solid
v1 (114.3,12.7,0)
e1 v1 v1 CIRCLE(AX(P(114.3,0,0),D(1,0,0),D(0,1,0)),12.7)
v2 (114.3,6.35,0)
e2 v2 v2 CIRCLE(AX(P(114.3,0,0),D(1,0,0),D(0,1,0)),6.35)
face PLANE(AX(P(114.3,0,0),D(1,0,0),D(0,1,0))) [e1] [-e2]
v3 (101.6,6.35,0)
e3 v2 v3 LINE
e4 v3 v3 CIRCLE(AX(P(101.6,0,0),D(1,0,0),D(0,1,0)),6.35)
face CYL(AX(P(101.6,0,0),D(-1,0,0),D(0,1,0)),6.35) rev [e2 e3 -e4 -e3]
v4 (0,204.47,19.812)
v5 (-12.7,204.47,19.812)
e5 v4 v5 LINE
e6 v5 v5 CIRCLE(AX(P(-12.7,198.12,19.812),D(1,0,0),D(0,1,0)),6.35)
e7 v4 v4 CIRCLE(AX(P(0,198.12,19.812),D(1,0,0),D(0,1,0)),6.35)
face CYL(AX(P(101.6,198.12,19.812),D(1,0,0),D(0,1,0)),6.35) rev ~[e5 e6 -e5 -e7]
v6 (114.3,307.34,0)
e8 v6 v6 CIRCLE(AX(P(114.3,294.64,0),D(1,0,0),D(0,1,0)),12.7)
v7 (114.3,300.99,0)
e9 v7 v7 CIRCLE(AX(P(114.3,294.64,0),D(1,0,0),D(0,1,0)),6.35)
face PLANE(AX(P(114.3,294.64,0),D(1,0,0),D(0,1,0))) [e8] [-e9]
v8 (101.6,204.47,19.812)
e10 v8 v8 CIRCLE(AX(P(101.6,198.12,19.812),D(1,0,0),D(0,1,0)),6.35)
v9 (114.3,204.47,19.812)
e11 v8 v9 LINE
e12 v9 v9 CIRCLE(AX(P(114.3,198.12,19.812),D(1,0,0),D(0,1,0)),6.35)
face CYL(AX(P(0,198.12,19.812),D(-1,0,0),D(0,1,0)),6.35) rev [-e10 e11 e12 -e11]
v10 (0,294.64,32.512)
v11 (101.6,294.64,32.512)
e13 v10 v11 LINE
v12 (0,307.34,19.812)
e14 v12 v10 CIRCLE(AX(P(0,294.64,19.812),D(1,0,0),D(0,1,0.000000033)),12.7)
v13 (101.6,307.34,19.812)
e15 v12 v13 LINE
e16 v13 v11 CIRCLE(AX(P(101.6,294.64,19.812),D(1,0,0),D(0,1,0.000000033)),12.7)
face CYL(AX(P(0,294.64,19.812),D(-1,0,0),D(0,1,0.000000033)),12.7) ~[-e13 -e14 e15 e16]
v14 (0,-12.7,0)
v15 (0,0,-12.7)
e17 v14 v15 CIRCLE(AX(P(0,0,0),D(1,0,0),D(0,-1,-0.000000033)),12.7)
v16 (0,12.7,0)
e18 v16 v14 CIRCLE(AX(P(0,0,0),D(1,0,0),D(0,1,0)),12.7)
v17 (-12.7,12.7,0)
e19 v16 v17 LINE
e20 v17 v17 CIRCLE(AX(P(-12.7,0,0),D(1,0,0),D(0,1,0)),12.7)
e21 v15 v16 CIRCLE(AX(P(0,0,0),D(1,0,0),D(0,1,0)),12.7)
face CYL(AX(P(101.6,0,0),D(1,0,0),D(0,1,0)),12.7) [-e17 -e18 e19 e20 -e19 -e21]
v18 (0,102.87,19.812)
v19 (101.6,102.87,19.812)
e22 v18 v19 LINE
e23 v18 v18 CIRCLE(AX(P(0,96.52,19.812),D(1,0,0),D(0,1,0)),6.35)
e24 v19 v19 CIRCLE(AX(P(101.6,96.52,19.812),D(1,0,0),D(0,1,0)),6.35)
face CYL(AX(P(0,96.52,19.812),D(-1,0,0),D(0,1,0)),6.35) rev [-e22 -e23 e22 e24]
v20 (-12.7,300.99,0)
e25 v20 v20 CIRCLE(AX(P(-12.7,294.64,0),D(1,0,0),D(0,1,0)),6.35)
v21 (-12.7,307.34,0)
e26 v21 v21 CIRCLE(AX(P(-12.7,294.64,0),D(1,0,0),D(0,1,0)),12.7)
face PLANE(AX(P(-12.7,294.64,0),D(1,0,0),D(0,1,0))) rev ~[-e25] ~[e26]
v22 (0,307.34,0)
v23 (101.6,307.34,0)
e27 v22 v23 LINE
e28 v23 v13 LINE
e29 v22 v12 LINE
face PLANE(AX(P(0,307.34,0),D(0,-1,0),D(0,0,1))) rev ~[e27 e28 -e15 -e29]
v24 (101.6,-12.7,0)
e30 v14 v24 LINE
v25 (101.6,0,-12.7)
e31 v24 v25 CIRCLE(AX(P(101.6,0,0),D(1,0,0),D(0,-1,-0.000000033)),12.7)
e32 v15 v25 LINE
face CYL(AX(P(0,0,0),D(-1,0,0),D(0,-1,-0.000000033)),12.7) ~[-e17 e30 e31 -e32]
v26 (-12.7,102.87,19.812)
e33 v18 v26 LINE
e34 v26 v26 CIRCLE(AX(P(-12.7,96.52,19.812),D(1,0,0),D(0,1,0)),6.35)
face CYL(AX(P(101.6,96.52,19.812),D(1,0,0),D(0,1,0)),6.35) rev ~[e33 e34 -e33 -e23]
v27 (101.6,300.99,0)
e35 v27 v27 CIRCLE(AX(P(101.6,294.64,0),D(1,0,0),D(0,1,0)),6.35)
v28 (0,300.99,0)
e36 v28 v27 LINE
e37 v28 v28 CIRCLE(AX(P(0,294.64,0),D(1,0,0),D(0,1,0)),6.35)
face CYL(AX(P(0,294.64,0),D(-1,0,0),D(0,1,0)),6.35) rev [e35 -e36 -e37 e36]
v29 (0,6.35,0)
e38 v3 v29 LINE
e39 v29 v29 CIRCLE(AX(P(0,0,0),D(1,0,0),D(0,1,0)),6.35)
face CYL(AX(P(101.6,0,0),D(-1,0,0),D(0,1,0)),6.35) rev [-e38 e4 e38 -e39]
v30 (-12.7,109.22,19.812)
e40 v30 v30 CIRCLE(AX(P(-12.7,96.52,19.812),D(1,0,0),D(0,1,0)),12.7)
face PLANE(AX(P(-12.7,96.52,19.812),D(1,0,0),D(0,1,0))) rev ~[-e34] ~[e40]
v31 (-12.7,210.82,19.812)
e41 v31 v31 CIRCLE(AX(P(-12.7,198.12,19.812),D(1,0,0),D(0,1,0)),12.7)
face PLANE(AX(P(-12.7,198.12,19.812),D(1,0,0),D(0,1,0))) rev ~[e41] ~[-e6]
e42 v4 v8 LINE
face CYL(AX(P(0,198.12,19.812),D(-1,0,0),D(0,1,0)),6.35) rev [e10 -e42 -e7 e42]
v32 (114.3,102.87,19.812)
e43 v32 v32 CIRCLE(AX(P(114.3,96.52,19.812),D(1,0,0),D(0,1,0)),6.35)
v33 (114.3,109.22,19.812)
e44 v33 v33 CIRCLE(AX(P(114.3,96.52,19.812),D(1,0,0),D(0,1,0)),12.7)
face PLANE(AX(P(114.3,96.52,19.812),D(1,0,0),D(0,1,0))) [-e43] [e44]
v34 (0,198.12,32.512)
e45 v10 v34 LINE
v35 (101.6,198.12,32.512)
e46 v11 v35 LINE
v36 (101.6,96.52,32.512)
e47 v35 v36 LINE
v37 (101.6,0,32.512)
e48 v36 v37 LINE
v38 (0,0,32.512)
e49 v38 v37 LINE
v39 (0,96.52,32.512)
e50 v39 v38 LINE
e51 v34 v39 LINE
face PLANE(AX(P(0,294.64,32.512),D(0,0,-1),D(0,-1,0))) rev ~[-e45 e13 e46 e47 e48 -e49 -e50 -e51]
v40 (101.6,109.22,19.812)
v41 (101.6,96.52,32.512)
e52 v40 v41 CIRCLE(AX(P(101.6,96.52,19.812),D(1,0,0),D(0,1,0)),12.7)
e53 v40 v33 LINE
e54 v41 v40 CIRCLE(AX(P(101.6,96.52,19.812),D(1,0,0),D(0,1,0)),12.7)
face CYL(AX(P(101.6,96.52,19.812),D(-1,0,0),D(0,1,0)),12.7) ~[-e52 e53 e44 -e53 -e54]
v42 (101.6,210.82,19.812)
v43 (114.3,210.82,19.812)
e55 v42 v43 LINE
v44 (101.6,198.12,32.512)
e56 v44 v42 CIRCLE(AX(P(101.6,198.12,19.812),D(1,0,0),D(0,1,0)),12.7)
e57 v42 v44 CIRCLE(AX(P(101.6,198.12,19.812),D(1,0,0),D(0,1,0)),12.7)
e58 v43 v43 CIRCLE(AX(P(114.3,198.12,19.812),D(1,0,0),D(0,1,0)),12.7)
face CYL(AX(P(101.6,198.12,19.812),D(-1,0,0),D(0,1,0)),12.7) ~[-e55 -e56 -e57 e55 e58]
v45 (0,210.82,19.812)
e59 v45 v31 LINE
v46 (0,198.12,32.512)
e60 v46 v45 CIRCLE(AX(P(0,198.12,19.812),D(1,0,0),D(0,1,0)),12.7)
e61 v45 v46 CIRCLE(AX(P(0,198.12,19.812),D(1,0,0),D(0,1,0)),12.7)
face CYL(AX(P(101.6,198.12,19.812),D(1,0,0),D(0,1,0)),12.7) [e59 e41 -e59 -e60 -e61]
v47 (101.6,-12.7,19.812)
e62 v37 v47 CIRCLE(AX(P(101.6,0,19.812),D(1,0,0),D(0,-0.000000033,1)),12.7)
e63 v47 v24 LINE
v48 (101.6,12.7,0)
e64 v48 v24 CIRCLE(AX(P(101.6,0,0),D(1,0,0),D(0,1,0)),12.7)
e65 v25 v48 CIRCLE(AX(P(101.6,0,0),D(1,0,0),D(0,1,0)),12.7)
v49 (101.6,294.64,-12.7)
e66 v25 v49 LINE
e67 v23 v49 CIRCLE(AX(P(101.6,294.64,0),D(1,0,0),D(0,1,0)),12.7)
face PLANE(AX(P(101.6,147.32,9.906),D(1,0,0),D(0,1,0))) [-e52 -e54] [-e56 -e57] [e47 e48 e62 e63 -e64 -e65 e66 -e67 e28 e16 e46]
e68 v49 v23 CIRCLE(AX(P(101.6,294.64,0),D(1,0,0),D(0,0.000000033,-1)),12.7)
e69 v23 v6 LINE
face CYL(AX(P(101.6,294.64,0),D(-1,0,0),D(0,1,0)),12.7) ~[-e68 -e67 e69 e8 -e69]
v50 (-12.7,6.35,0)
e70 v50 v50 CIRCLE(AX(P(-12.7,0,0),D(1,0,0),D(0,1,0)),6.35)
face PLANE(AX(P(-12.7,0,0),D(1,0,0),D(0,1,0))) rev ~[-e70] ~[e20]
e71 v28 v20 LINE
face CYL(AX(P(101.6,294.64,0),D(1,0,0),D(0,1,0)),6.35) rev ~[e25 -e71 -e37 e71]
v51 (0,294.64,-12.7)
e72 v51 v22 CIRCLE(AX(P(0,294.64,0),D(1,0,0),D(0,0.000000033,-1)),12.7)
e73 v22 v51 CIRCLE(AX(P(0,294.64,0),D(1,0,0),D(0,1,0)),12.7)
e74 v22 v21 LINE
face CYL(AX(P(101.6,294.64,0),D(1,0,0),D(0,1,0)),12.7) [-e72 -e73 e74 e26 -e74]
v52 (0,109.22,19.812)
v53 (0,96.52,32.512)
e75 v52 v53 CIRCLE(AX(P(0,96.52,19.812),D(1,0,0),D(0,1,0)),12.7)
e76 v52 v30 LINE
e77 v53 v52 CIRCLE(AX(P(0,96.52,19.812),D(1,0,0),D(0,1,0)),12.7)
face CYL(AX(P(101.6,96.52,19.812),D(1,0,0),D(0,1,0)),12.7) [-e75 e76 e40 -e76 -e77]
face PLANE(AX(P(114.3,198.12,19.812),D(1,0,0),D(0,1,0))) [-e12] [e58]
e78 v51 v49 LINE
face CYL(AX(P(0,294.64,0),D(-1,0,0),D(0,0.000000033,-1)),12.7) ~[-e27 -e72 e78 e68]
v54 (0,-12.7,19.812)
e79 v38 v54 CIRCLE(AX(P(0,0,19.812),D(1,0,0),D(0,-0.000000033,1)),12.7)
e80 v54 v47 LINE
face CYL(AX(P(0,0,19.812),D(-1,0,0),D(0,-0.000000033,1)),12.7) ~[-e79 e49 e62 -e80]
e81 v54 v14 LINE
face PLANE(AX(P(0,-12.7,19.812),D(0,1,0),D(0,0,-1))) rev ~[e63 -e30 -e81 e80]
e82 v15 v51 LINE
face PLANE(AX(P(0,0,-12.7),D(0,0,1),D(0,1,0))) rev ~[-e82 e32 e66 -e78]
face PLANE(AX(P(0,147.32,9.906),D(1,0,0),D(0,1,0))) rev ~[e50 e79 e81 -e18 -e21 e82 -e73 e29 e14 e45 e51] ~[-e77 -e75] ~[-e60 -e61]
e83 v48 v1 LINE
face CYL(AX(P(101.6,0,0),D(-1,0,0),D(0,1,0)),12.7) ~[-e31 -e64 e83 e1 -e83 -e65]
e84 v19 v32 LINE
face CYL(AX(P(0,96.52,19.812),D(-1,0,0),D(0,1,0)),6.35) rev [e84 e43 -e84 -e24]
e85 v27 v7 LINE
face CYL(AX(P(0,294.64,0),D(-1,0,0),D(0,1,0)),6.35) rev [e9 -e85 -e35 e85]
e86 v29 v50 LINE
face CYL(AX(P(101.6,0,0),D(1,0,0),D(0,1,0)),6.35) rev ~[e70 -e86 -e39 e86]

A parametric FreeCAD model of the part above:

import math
import FreeCAD as App
import Part
import Sketcher
from FreeCAD import Vector
Q = App.Units.Quantity

doc = App.newDocument("Part")
body = doc.addObject("PartDesign::Body", "Body")

# Sketch on YZ plane
sketch1 = body.newObject("Sketcher::SketchObject", "Sketch")
sketch1.AttachmentSupport = (doc.getObject("YZ_Plane"), [""])
sketch1.MapMode = "FlatFace"
sketch1.addGeometry(Part.ArcOfCircle(Part.Circle(Vector(0, 19.812, 0), Vector(0, 0, 1), 12.7), math.radians(90.000002), math.radians(179.999998)), False)
sketch1.addGeometry(Part.LineSegment(Vector(-12.7, 19.812, 0), Vector(-12.7, 0, 0)), False)
sketch1.addGeometry(Part.ArcOfCircle(Part.Circle(Vector(0, 0, 0), Vector(0, 0, 1), 12.7), math.radians(-179.999998), math.radians(-90.000002)), False)
sketch1.addGeometry(Part.LineSegment(Vector(0, -12.7, 0), Vector(294.64, -12.7, 0)), False)
sketch1.addGeometry(Part.ArcOfCircle(Part.Circle(Vector(294.64, 0, 0), Vector(0, 0, 1), 12.7), math.radians(-89.999998), math.radians(-0.000002)), False)
sketch1.addGeometry(Part.LineSegment(Vector(307.34, 0, 0), Vector(307.34, 19.812, 0)), False)
sketch1.addGeometry(Part.ArcOfCircle(Part.Circle(Vector(294.64, 19.812, 0), Vector(0, 0, 1), 12.7), math.radians(0.000002), math.radians(89.999998)), False)
sketch1.addGeometry(Part.LineSegment(Vector(294.64, 32.512, 0), Vector(0, 32.512, 0)), False)
sketch1.addGeometry(Part.Circle(Vector(0, 0, 0), Vector(0, 0, 1), 6.35), False)
sketch1.addGeometry(Part.Circle(Vector(294.64, 0, 0), Vector(0, 0, 1), 6.35), False)
sketch1.addGeometry(Part.Circle(Vector(96.52, 19.812, 0), Vector(0, 0, 1), 6.35), False)
sketch1.addGeometry(Part.Circle(Vector(198.12, 19.812, 0), Vector(0, 0, 1), 6.35), False)
sketch1.addConstraint(Sketcher.Constraint("Tangent", 0, 2, 1, 1))
sketch1.addConstraint(Sketcher.Constraint("Tangent", 1, 2, 2, 1))
sketch1.addConstraint(Sketcher.Constraint("Tangent", 2, 2, 3, 1))
sketch1.addConstraint(Sketcher.Constraint("Tangent", 3, 2, 4, 1))
sketch1.addConstraint(Sketcher.Constraint("Tangent", 4, 2, 5, 1))
sketch1.addConstraint(Sketcher.Constraint("Tangent", 5, 2, 6, 1))
sketch1.addConstraint(Sketcher.Constraint("Tangent", 6, 2, 7, 1))
sketch1.addConstraint(Sketcher.Constraint("Tangent", 7, 2, 0, 1))
sketch1.addConstraint(Sketcher.Constraint("Vertical", 1))
sketch1.addConstraint(Sketcher.Constraint("Horizontal", 3))
sketch1.addConstraint(Sketcher.Constraint("Vertical", 5))
sketch1.addConstraint(Sketcher.Constraint("Horizontal", 7))
sketch1.addConstraint(Sketcher.Constraint("Coincident", 2, 3, -1, 1))
sketch1.addConstraint(Sketcher.Constraint("Coincident", 8, 3, -1, 1))
sketch1.addConstraint(Sketcher.Constraint("Coincident", 9, 3, 4, 3))
sketch1.addConstraint(Sketcher.Constraint("Equal", 0, 2))
sketch1.addConstraint(Sketcher.Constraint("Equal", 2, 4))
sketch1.addConstraint(Sketcher.Constraint("Equal", 4, 6))
sketch1.addConstraint(Sketcher.Constraint("Equal", 8, 9))
sketch1.addConstraint(Sketcher.Constraint("Equal", 9, 10))
sketch1.addConstraint(Sketcher.Constraint("Equal", 10, 11))
sketch1.addConstraint(Sketcher.Constraint("Horizontal", 6, 3, 10, 3))
sketch1.addConstraint(Sketcher.Constraint("Horizontal", 10, 3, 11, 3))
sketch1.addConstraint(Sketcher.Constraint("Diameter", 8, Q("0.5 in")))
sketch1.addConstraint(Sketcher.Constraint("Radius", 0, Q("0.5 in")))
sketch1.addConstraint(Sketcher.Constraint("DistanceX", 3, 1, 3, 2, Q("11.6 in")))
sketch1.addConstraint(Sketcher.Constraint("DistanceX", 10, 3, 11, 3, Q("4 in")))
sketch1.addConstraint(Sketcher.Constraint("DistanceY", 1, 2, 1, 1, Q("0.78 in")))
sketch1.addConstraint(Sketcher.Constraint("DistanceX", -1, 1, 10, 3, Q("3.8 in")))
pad1 = body.newObject("PartDesign::Pad", "Pad")
pad1.Profile = sketch1
pad1.Length = Q("4 in")

# Sketch on YZ plane
sketch2 = body.newObject("Sketcher::SketchObject", "Sketch001")
sketch2.AttachmentSupport = (doc.getObject("YZ_Plane"), [""])
sketch2.MapMode = "FlatFace"
sketch2.AttachmentOffset = App.Placement(Vector(0, 0, 4 * 25.4), App.Rotation())
sketch2.addGeometry(Part.Circle(Vector(0, 0, 0), Vector(0, 0, 1), 12.7), False)
sketch2.addGeometry(Part.Circle(Vector(0, 0, 0), Vector(0, 0, 1), 6.35), False)
sketch2.addGeometry(Part.Circle(Vector(96.52, 19.812, 0), Vector(0, 0, 1), 12.7), False)
sketch2.addGeometry(Part.Circle(Vector(96.52, 19.812, 0), Vector(0, 0, 1), 6.35), False)
sketch2.addGeometry(Part.Circle(Vector(198.12, 19.812, 0), Vector(0, 0, 1), 12.7), False)
sketch2.addGeometry(Part.Circle(Vector(198.12, 19.812, 0), Vector(0, 0, 1), 6.35), False)
sketch2.addGeometry(Part.Circle(Vector(294.64, 0, 0), Vector(0, 0, 1), 12.7), False)
sketch2.addGeometry(Part.Circle(Vector(294.64, 0, 0), Vector(0, 0, 1), 6.35), False)
sketch2.addConstraint(Sketcher.Constraint("Coincident", 0, 3, -1, 1))
sketch2.addConstraint(Sketcher.Constraint("Coincident", 1, 3, -1, 1))
sketch2.addConstraint(Sketcher.Constraint("Coincident", 3, 3, 2, 3))
sketch2.addConstraint(Sketcher.Constraint("Coincident", 5, 3, 4, 3))
sketch2.addConstraint(Sketcher.Constraint("Coincident", 7, 3, 6, 3))
sketch2.addConstraint(Sketcher.Constraint("Equal", 0, 2))
sketch2.addConstraint(Sketcher.Constraint("Equal", 1, 3))
sketch2.addConstraint(Sketcher.Constraint("Equal", 2, 4))
sketch2.addConstraint(Sketcher.Constraint("Equal", 3, 5))
sketch2.addConstraint(Sketcher.Constraint("Equal", 4, 6))
sketch2.addConstraint(Sketcher.Constraint("Equal", 5, 7))
sketch2.addConstraint(Sketcher.Constraint("PointOnObject", 6, 3, -1))
sketch2.addConstraint(Sketcher.Constraint("Horizontal", 3, 3, 4, 3))
sketch2.addConstraint(Sketcher.Constraint("Diameter", 0, Q("1 in")))
sketch2.addConstraint(Sketcher.Constraint("Diameter", 1, Q("0.5 in")))
sketch2.addConstraint(Sketcher.Constraint("DistanceX", 2, 3, 4, 3, Q("4 in")))
sketch2.addConstraint(Sketcher.Constraint("DistanceX", -1, 1, 2, 3, Q("3.8 in")))
sketch2.addConstraint(Sketcher.Constraint("DistanceX", -1, 1, 6, 3, Q("11.6 in")))
sketch2.addConstraint(Sketcher.Constraint("DistanceY", -1, 1, 2, 3, Q("0.78 in")))
pad2 = body.newObject("PartDesign::Pad", "Pad001")
pad2.Profile = sketch2
pad2.Type = "TwoLengths"
pad2.Length = Q("0.5 in")
pad2.Length2 = Q("4.5 in")

doc.recompute()
